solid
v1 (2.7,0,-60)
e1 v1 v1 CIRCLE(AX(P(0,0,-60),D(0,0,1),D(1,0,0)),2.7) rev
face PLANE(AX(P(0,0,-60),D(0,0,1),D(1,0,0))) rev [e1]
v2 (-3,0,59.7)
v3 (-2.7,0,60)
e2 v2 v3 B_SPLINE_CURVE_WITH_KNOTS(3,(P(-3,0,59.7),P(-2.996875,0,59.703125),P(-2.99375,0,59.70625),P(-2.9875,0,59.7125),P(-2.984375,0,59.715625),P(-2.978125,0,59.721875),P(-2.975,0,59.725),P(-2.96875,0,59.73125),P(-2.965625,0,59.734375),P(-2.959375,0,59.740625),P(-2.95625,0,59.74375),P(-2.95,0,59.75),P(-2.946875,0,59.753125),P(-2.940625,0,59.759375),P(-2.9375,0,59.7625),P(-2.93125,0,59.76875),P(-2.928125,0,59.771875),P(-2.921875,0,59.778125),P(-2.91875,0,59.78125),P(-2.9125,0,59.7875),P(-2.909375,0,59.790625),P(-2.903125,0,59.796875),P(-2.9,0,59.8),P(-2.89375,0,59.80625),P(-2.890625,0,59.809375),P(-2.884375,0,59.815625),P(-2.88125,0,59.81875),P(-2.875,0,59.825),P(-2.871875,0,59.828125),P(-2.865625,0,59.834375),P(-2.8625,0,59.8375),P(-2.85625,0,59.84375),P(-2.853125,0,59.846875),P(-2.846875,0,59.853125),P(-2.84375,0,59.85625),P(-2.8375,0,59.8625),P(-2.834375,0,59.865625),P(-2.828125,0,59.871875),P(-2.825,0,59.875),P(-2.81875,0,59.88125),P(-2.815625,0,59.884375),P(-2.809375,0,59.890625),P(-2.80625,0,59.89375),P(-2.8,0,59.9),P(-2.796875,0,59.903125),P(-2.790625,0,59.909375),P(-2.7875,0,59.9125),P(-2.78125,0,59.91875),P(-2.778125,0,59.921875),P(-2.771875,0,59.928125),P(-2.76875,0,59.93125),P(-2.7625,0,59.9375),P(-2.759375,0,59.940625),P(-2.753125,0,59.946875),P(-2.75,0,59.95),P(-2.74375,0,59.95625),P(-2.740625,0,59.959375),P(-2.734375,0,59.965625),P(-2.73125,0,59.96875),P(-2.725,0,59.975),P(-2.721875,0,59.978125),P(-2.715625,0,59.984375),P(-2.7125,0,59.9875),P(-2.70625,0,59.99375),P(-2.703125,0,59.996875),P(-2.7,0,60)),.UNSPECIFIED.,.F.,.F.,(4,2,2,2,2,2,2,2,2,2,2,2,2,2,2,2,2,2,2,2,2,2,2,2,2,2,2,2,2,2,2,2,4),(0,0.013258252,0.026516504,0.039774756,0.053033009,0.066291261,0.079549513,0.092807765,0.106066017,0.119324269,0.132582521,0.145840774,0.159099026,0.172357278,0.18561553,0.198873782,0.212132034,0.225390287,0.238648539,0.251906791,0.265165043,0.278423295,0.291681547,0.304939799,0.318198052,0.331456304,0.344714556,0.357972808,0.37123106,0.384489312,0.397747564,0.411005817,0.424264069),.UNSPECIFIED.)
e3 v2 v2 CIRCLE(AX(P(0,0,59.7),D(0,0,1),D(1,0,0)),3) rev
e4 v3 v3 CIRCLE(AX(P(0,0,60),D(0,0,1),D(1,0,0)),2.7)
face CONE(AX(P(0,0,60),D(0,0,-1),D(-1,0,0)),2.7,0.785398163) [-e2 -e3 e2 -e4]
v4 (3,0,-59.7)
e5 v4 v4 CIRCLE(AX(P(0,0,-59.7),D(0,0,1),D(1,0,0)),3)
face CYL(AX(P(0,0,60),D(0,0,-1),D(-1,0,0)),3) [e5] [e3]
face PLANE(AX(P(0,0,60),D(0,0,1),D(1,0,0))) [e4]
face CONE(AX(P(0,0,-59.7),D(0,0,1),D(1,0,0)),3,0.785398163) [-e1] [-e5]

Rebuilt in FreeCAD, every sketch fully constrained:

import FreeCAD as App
import Part
import Sketcher
from FreeCAD import Vector


def edges_at(feature, points):
    """Names of the edges that pass closest to the given points."""
    edges = feature.Shape.Edges
    near = lambda p: min(range(len(edges)), key=lambda i: edges[i].distToShape(Part.Vertex(*p))[0])
    return sorted({f"Edge{near(p) + 1}" for p in points})

doc = App.newDocument("Part")
body = doc.addObject("PartDesign::Body", "Body")

sketch1 = doc.addObject("Sketcher::SketchObject", "Sketch")
body.addObject(sketch1)
sketch1.AttachmentSupport = (doc.XY_Plane, [""])
sketch1.MapMode = "FlatFace"
sketch1.addGeometry(Part.Circle(Vector(0, 0, 0), Vector(0, 0, 1), 3), False)
sketch1.addConstraint([
    Sketcher.Constraint("Coincident", 0, 3, -1, 1),
    Sketcher.Constraint("Diameter", 0, 6.0),
])
pad1 = doc.addObject("PartDesign::Pad", "Pad")
body.addObject(pad1)
pad1.Profile = sketch1
pad1.Length = 120
pad1.Midplane = True
doc.recompute()

chamfer = doc.addObject("PartDesign::Chamfer", "Chamfer")
body.addObject(chamfer)
chamfer.Base = (pad1, edges_at(pad1, [(-3, 0, 60)]))
chamfer.Size = 0.3
doc.recompute()

chamfer2 = doc.addObject("PartDesign::Chamfer", "Chamfer001")
body.addObject(chamfer2)
chamfer2.Base = (chamfer, edges_at(chamfer, [(-3, 0, -60)]))
chamfer2.Size = 0.3

doc.recompute()
